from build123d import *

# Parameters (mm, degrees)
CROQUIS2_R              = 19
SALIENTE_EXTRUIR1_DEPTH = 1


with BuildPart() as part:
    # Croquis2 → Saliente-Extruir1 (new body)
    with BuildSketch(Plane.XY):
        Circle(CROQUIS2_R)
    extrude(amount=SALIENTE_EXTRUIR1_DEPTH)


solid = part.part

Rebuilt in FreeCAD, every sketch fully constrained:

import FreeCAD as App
import Part
import Sketcher

V = App.Vector
Q = App.Units.Quantity

doc = App.newDocument("Part")
body = doc.addObject("PartDesign::Body", "Body")

# Sketch on XY plane
sketch1 = body.newObject("Sketcher::SketchObject", "Sketch")
sketch1.AttachmentSupport = (doc.getObject("XY_Plane"), [""])
sketch1.MapMode = "FlatFace"
sketch1.addGeometry(Part.Circle(V(0, 0, 0), V(0, 0, 1), 19), False)
sketch1.addConstraint(Sketcher.Constraint("Coincident", 0, 3, -1, 1))
sketch1.addConstraint(Sketcher.Constraint("Diameter", 0, Q("38 mm")))
pad1 = body.newObject("PartDesign::Pad", "Pad")
pad1.Profile = sketch1
pad1.Length = 1

doc.recompute()
